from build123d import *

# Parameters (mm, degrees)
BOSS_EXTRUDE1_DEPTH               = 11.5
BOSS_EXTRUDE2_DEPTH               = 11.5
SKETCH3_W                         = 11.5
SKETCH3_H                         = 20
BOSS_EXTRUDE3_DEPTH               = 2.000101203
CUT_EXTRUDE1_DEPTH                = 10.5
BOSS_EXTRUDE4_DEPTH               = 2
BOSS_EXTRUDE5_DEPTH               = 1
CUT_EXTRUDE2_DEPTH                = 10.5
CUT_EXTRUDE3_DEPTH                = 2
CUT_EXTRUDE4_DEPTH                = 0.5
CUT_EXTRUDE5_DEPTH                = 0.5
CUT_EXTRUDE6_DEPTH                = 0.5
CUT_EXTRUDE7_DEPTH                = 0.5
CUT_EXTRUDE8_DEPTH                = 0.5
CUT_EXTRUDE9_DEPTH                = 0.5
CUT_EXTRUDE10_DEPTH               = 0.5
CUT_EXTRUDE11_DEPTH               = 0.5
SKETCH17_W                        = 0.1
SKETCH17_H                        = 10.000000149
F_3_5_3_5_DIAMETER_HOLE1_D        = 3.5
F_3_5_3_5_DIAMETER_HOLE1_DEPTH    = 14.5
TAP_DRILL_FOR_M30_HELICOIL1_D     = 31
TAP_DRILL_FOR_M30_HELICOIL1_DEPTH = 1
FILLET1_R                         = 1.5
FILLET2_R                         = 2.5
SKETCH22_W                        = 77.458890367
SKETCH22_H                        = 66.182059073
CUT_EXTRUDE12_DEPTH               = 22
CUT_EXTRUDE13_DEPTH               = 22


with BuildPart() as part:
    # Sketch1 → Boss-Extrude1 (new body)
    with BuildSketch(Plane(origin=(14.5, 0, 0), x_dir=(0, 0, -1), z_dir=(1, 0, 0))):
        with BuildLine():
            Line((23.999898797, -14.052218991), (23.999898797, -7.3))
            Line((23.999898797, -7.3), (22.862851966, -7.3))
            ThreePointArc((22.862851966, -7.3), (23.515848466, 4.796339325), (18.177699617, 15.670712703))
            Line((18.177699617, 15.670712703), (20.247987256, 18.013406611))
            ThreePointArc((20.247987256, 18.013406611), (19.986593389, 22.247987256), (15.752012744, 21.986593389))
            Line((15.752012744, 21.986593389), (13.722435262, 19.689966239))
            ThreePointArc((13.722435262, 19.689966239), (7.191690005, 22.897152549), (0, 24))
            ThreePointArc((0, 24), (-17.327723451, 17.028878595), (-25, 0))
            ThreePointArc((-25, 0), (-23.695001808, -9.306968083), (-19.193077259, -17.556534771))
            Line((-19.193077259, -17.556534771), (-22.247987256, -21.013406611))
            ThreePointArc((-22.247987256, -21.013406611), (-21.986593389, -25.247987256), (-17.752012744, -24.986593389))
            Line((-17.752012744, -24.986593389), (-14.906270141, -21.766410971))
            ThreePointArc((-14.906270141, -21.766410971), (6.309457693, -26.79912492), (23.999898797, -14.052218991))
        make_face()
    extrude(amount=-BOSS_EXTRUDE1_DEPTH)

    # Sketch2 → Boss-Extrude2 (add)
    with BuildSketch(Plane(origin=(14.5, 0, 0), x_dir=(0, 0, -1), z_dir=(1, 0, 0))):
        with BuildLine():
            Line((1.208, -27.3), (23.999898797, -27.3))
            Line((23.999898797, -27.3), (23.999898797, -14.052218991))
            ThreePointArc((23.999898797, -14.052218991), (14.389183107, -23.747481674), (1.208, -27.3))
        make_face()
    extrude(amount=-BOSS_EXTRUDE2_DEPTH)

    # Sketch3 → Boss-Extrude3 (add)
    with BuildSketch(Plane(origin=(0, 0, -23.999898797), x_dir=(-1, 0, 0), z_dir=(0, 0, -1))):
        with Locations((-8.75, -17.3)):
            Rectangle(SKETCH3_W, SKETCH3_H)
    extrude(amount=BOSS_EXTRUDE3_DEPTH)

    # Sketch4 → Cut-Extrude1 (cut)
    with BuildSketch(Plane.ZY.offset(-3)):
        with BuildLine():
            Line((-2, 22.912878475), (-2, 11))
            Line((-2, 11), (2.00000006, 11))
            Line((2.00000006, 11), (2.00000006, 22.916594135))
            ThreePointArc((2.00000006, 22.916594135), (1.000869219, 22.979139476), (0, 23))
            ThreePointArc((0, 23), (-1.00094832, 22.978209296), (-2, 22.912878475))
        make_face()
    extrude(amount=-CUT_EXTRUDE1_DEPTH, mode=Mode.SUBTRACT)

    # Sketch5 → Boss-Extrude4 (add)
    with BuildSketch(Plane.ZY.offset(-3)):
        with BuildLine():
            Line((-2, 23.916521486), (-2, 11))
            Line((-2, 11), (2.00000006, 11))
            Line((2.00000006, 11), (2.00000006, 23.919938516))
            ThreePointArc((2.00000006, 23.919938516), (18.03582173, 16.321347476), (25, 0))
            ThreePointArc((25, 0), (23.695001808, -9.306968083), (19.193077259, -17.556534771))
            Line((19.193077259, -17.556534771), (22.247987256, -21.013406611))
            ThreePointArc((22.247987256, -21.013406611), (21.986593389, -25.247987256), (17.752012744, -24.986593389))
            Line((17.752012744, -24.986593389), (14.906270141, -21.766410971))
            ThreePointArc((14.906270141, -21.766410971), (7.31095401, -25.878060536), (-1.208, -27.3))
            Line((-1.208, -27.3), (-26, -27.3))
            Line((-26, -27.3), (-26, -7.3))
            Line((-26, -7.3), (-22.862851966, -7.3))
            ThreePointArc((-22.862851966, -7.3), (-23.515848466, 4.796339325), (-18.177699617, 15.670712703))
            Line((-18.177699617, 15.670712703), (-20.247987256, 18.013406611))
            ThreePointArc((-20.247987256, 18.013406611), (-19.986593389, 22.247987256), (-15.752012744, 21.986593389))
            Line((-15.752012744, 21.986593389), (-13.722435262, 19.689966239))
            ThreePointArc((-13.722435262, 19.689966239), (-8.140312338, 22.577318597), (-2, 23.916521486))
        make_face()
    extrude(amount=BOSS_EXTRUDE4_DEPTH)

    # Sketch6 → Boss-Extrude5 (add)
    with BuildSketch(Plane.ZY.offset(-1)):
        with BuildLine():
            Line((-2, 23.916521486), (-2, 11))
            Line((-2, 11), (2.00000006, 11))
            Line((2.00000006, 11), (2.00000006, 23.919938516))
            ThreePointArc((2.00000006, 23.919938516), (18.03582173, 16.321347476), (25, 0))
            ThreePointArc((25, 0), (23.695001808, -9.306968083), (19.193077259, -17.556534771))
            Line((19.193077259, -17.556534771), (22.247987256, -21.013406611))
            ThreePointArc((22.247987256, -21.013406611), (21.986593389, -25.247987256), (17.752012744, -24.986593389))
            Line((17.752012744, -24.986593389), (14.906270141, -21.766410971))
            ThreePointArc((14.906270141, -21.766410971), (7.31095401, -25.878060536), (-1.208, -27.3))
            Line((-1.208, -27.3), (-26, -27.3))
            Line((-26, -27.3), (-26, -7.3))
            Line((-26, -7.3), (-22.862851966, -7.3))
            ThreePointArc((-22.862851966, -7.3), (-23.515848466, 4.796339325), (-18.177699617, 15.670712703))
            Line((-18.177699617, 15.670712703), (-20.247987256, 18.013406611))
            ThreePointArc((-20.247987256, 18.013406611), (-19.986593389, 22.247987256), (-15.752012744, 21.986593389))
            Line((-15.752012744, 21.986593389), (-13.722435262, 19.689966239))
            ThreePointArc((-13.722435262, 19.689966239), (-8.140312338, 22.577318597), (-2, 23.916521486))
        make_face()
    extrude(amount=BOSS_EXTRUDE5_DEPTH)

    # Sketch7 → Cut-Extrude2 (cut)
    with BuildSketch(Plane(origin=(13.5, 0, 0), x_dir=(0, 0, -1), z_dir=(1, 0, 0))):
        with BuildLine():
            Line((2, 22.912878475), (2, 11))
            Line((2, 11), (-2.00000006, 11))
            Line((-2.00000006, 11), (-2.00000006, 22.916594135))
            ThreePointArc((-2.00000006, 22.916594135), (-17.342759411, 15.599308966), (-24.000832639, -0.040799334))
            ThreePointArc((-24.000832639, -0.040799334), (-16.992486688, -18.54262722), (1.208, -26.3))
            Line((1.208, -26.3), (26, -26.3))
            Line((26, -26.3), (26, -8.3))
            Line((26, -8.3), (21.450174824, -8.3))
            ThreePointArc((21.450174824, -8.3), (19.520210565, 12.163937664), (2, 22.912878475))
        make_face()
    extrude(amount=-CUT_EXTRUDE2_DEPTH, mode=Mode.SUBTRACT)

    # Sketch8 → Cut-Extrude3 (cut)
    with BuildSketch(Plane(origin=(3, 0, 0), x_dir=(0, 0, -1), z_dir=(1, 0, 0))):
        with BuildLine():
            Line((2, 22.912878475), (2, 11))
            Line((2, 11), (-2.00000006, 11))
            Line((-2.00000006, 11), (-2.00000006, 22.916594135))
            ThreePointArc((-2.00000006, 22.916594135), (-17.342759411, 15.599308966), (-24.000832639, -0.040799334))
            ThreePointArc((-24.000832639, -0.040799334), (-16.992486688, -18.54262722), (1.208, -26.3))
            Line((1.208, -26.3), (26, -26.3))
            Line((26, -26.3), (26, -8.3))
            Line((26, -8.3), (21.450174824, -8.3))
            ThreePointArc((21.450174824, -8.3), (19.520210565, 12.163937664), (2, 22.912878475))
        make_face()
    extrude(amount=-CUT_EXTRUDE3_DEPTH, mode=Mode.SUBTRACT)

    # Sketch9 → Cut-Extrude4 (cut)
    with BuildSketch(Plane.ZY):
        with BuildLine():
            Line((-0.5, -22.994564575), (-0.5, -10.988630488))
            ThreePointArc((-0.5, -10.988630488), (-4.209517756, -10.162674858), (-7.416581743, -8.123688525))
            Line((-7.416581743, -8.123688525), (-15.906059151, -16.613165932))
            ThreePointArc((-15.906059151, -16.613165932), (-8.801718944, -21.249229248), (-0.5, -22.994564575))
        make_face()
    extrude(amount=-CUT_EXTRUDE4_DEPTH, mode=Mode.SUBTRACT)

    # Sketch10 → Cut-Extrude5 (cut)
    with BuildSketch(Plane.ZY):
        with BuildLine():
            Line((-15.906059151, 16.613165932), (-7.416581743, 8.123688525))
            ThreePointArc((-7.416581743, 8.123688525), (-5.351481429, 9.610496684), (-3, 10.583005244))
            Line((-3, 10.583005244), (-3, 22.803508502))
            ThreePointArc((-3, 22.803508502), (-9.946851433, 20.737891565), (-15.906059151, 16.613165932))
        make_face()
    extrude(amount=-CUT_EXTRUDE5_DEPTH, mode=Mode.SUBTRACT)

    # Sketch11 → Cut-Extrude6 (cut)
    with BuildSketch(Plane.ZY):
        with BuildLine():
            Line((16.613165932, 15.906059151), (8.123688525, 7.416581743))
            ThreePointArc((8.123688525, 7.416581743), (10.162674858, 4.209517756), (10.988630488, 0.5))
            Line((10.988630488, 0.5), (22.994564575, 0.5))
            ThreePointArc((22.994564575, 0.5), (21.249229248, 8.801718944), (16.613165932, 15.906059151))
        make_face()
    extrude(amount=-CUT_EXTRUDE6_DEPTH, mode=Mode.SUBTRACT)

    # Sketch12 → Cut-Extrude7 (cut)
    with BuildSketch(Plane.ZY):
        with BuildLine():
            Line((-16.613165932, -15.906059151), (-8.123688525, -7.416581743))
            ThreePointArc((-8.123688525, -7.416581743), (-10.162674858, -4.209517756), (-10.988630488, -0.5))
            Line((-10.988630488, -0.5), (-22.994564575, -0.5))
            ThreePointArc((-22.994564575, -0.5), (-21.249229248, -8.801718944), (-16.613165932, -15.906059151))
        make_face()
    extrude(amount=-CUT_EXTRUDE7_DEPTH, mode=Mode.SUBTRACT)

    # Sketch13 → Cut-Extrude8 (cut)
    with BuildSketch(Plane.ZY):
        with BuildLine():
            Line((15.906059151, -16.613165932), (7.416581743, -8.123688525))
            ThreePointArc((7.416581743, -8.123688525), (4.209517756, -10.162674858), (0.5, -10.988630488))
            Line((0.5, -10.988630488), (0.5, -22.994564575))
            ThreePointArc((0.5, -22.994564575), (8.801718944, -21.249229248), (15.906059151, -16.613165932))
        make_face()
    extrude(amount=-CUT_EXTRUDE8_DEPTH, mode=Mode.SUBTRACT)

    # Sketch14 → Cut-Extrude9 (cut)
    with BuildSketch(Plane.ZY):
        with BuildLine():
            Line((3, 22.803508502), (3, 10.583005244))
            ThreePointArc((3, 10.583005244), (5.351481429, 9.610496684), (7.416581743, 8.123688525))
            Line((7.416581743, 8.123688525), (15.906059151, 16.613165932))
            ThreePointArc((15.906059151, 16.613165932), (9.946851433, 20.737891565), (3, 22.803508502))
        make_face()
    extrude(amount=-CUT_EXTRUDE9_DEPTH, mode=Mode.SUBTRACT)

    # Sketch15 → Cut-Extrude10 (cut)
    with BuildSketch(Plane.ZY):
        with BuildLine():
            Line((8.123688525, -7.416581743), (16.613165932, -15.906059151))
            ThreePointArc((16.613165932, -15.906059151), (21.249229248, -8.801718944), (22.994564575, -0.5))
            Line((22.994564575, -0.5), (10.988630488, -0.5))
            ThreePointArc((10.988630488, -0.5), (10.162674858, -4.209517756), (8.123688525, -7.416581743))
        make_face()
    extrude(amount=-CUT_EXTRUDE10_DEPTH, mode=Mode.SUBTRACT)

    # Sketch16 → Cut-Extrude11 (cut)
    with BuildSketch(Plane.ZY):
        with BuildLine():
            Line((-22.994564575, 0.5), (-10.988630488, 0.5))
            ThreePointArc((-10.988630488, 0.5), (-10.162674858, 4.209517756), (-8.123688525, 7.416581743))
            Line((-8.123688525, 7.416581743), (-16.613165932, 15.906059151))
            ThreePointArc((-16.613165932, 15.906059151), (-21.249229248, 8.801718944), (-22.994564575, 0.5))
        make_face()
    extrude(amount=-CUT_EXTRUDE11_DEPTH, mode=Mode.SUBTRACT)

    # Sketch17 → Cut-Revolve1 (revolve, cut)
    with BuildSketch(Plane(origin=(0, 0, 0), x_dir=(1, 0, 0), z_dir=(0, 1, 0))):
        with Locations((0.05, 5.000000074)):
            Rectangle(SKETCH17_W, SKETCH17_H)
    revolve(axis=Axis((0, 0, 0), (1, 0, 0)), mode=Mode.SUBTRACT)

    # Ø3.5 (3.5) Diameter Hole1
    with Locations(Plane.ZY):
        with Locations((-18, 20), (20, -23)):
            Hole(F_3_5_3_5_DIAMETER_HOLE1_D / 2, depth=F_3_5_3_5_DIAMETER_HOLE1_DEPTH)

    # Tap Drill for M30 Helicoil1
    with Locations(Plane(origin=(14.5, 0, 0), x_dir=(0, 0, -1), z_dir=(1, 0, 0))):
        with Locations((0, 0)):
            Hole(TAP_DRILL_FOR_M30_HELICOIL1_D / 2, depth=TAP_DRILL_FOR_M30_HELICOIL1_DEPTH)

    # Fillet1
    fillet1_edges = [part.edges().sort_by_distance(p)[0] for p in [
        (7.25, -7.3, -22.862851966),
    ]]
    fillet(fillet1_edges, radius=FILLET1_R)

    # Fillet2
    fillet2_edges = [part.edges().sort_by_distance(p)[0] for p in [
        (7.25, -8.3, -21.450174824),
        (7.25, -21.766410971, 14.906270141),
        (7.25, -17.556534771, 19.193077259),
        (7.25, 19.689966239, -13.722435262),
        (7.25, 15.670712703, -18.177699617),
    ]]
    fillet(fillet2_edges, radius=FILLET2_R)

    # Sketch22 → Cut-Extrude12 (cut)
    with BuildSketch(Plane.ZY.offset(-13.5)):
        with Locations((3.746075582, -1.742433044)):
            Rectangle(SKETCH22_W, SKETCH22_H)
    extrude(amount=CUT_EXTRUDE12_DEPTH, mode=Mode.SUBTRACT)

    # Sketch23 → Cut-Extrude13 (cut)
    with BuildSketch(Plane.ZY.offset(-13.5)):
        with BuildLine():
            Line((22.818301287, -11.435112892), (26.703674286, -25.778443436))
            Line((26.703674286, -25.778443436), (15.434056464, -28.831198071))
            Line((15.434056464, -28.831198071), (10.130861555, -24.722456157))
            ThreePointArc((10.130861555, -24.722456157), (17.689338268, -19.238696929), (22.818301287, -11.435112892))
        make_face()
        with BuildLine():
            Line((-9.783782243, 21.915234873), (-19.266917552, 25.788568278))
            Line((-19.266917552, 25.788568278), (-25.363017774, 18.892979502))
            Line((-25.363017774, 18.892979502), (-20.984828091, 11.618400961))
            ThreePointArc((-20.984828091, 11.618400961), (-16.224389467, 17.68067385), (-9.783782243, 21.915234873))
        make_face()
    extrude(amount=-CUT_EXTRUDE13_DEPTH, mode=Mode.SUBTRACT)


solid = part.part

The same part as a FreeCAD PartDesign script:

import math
import FreeCAD as App
import Part
import Sketcher

V = App.Vector
Q = App.Units.Quantity


def edges_at(feature, points):
    """Names of the edges that pass closest to the given points."""
    edges = feature.Shape.Edges
    near = lambda p: min(range(len(edges)), key=lambda i: edges[i].distToShape(Part.Vertex(*p))[0])
    return sorted({f"Edge{near(p) + 1}" for p in points})

doc = App.newDocument("Part")
body = doc.addObject("PartDesign::Body", "Body")

# Sketch on YZ plane
sketch1 = body.newObject("Sketcher::SketchObject", "Sketch")
sketch1.AttachmentSupport = (doc.getObject("YZ_Plane"), [""])
sketch1.MapMode = "FlatFace"
sketch1.AttachmentOffset = App.Placement(V(0, 0, 14.5), App.Rotation())
sketch1.addGeometry([
    Part.LineSegment(V(-14.052219, -23.999899, 0), V(-7.3, -23.999899, 0)),  # 0
    Part.LineSegment(V(-7.3, -23.999899, 0), V(-7.3, -22.862852, 0)),  # 1
    Part.ArcOfCircle(Part.Circle(V(0, 0, 0), V(0, 0, 1), 24), math.radians(-107.708036), math.radians(-49.235885)),  # 2
    Part.LineSegment(V(15.670713, -18.1777, 0), V(18.013407, -20.247987, 0)),  # 3
    Part.ArcOfCircle(Part.Circle(V(20, -18, 0), V(0, 0, 1), 3), math.radians(-131.467705), math.radians(48.532295)),  # 4
    Part.LineSegment(V(21.986593, -15.752013, 0), V(19.689966, -13.722435, 0)),  # 5
    Part.ArcOfCircle(Part.Circle(V(0, 0, 0), V(0, 0, 1), 24), math.radians(-34.873615), math.radians(0)),  # 6
    Part.ArcOfCircle(Part.Circle(V(-1.020833, 0, 0), V(0, 0, 1), 25.020833), math.radians(0), math.radians(87.661721)),  # 7
    Part.ArcOfCircle(Part.Circle(V(-1.07016, -1.208, 0), V(0, 0, 1), 26.22984), math.radians(87.661721), math.radians(128.942126)),  # 8
    Part.LineSegment(V(-17.556535, 19.193077, 0), V(-21.013407, 22.247987, 0)),  # 9
    Part.ArcOfCircle(Part.Circle(V(-23, 20, 0), V(0, 0, 1), 3), math.radians(48.532295), math.radians(228.532295)),  # 10
    Part.LineSegment(V(-24.986593, 17.752013, 0), V(-21.766411, 14.90627, 0)),  # 11
    Part.ArcOfCircle(Part.Circle(V(-1.07016, -1.208, 0), V(0, 0, 1), 26.22984), math.radians(142.095383), math.radians(240.334553)),  # 12
], False)
sketch1.addConstraint([
    Sketcher.Constraint("Coincident", 0, 2, 1, 1),
    Sketcher.Constraint("Coincident", 1, 2, 2, 1),
    Sketcher.Constraint("Coincident", 2, 2, 3, 1),
    Sketcher.Constraint("Tangent", 3, 2, 4, 1),
    Sketcher.Constraint("Tangent", 4, 2, 5, 1),
    Sketcher.Constraint("Coincident", 5, 2, 6, 1),
    Sketcher.Constraint("Tangent", 6, 2, 7, 1),
    Sketcher.Constraint("Tangent", 7, 2, 8, 1),
    Sketcher.Constraint("Coincident", 8, 2, 9, 1),
    Sketcher.Constraint("Tangent", 9, 2, 10, 1),
    Sketcher.Constraint("Tangent", 10, 2, 11, 1),
    Sketcher.Constraint("Coincident", 11, 2, 12, 1),
    Sketcher.Constraint("Coincident", 12, 2, 0, 1),
    Sketcher.Constraint("Horizontal", 0),
    Sketcher.Constraint("Vertical", 1),
    Sketcher.Constraint("Coincident", 2, 3, -1, 1),
    Sketcher.Constraint("Coincident", 6, 3, -1, 1),
    Sketcher.Constraint("Coincident", 12, 3, 8, 3),
    Sketcher.Constraint("Equal", 2, 6),
    Sketcher.Constraint("Equal", 4, 10),
    Sketcher.Constraint("Equal", 8, 12),
    Sketcher.Constraint("PointOnObject", 7, 3, -1),
    Sketcher.Constraint("PointOnObject", 7, 2, -2),
    Sketcher.Constraint("Parallel", 3, 5),
    Sketcher.Constraint("Parallel", 5, 9),
    Sketcher.Constraint("Parallel", 9, 11),
    Sketcher.Constraint("Radius", 2, 24.0),
    Sketcher.Constraint("Radius", 4, 3.0),
    Sketcher.Constraint("DistanceX", -1, 1, 4, 3, 20.0),
    Sketcher.Constraint("DistanceY", 4, 3, -1, 1, 18.0),
    Sketcher.Constraint("DistanceX", 10, 3, -1, 1, 23.0),
    Sketcher.Constraint("DistanceY", -1, 1, 10, 3, 20.0),
    Sketcher.Constraint("DistanceY", -1, 1, 7, 2, 25.0),
    Sketcher.Constraint("DistanceX", 0, 2, -1, 1, 7.3),
    Sketcher.Constraint("Radius", 8, 26.22984),
    Sketcher.Constraint("DistanceX", 0, 1, 0, 2, 6.752219),
    Sketcher.Constraint("DistanceY", 2, 2, -1, 1, 18.1777),
])
pad1 = body.newObject("PartDesign::Pad", "Pad")
pad1.Profile = sketch1
pad1.Length = 11.5
pad1.Reversed = True

# Sketch on YZ plane
sketch2 = body.newObject("Sketcher::SketchObject", "Sketch001")
sketch2.AttachmentSupport = (doc.getObject("YZ_Plane"), [""])
sketch2.MapMode = "FlatFace"
sketch2.AttachmentOffset = App.Placement(V(0, 0, 14.5), App.Rotation())
sketch2.addGeometry([
    Part.LineSegment(V(-27.3, -1.208, 0), V(-27.3, -23.999899, 0)),
    Part.LineSegment(V(-27.3, -23.999899, 0), V(-14.052219, -23.999899, 0)),
    Part.ArcOfCircle(Part.Circle(V(-1.07016, -1.208, 0), V(0, 0, 1), 26.22984), math.radians(-180), math.radians(-119.665447)),
], False)
sketch2.addConstraint([
    Sketcher.Constraint("Coincident", 0, 2, 1, 1),
    Sketcher.Constraint("Coincident", 1, 2, 2, 2),
    Sketcher.Constraint("Tangent", 2, 1, 0, 1),
    Sketcher.Constraint("Vertical", 0),
    Sketcher.Constraint("Horizontal", 1),
    Sketcher.Constraint("DistanceX", 0, 2, -1, 1, 27.3),
    Sketcher.Constraint("Radius", 2, 26.22984),
    Sketcher.Constraint("DistanceY", 0, 2, 0, 1, 22.791899),
    Sketcher.Constraint("DistanceY", 2, 3, -1, 1, 1.208),
])
pad2 = body.newObject("PartDesign::Pad", "Pad001")
pad2.Profile = sketch2
pad2.Length = 11.5
pad2.Reversed = True

# Sketch on XY plane
sketch3 = body.newObject("Sketcher::SketchObject", "Sketch002")
sketch3.AttachmentSupport = (doc.getObject("XY_Plane"), [""])
sketch3.MapMode = "FlatFace"
sketch3.AttachmentOffset = App.Placement(V(0, 0, -23.999899), App.Rotation())
sketch3.addGeometry([
    Part.LineSegment(V(14.5, -7.3, 0), V(14.5, -27.3, 0)),
    Part.LineSegment(V(14.5, -27.3, 0), V(3, -27.3, 0)),
    Part.LineSegment(V(3, -27.3, 0), V(3, -7.3, 0)),
    Part.LineSegment(V(3, -7.3, 0), V(14.5, -7.3, 0)),
], False)
sketch3.addConstraint([
    Sketcher.Constraint("Coincident", 0, 2, 1, 1),
    Sketcher.Constraint("Coincident", 1, 2, 2, 1),
    Sketcher.Constraint("Coincident", 2, 2, 3, 1),
    Sketcher.Constraint("Coincident", 3, 2, 0, 1),
    Sketcher.Constraint("Vertical", 0),
    Sketcher.Constraint("Horizontal", 1),
    Sketcher.Constraint("Vertical", 2),
    Sketcher.Constraint("Horizontal", 3),
    Sketcher.Constraint("DistanceY", 0, 2, 0, 1, 20.0),
    Sketcher.Constraint("DistanceX", 1, 2, 1, 1, 11.5),
    Sketcher.Constraint("DistanceX", -1, 1, 1, 2, 3.0),
    Sketcher.Constraint("DistanceY", 0, 2, -1, 1, 27.3),
])
pad3 = body.newObject("PartDesign::Pad", "Pad002")
pad3.Profile = sketch3
pad3.Length = 2.000101
pad3.Reversed = True

# Sketch on YZ plane
sketch4 = body.newObject("Sketcher::SketchObject", "Sketch003")
sketch4.AttachmentSupport = (doc.getObject("YZ_Plane"), [""])
sketch4.MapMode = "FlatFace"
sketch4.AttachmentOffset = App.Placement(V(0, 0, 3), App.Rotation())
sketch4.addGeometry([
    Part.LineSegment(V(22.912878, -2, 0), V(11, -2, 0)),  # 0
    Part.LineSegment(V(11, -2, 0), V(11, 2, 0)),  # 1
    Part.LineSegment(V(11, 2, 0), V(22.916594, 2, 0)),  # 2
    Part.ArcOfCircle(Part.Circle(V(-1.020833, 0, 0), V(0, 0, 1), 24.020833), math.radians(0), math.radians(4.776036)),  # 3
    Part.ArcOfCircle(Part.Circle(V(0, 0, 0), V(0, 0, 1), 23), math.radians(-4.988542), math.radians(0)),  # 4
], False)
sketch4.addConstraint([
    Sketcher.Constraint("Coincident", 0, 2, 1, 1),
    Sketcher.Constraint("Coincident", 1, 2, 2, 1),
    Sketcher.Constraint("Coincident", 2, 2, 3, 2),
    Sketcher.Constraint("Tangent", 3, 1, 4, 2),
    Sketcher.Constraint("Coincident", 4, 1, 0, 1),
    Sketcher.Constraint("Horizontal", 0),
    Sketcher.Constraint("Vertical", 1),
    Sketcher.Constraint("Horizontal", 2),
    Sketcher.Constraint("Coincident", 4, 3, -1, 1),
    Sketcher.Constraint("PointOnObject", 3, 3, -1),
    Sketcher.Constraint("Radius", 4, 23.0),
    Sketcher.Constraint("DistanceY", 1, 1, 1, 2, 4.0),
    Sketcher.Constraint("DistanceX", -1, 1, 0, 2, 11.0),
    Sketcher.Constraint("DistanceY", 0, 2, -1, 1, 2.0),
    Sketcher.Constraint("Radius", 3, 24.020833),
])
pocket1 = body.newObject("PartDesign::Pocket", "Pocket")
pocket1.Profile = sketch4
pocket1.Length = 10.5
pocket1.Reversed = True

# Sketch on YZ plane
sketch5 = body.newObject("Sketcher::SketchObject", "Sketch004")
sketch5.AttachmentSupport = (doc.getObject("YZ_Plane"), [""])
sketch5.MapMode = "FlatFace"
sketch5.AttachmentOffset = App.Placement(V(0, 0, 3), App.Rotation())
sketch5.addGeometry([
    Part.LineSegment(V(11, -2, 0), V(23.916521, -2, 0)),  # 0
    Part.ArcOfCircle(Part.Circle(V(0, 0, 0), V(0, 0, 1), 24), math.radians(-34.873615), math.radians(-4.780192)),  # 1
    Part.LineSegment(V(19.689966, -13.722435, 0), V(21.986593, -15.752013, 0)),  # 2
    Part.ArcOfCircle(Part.Circle(V(20, -18, 0), V(0, 0, 1), 3), math.radians(-131.467705), math.radians(48.532295)),  # 3
    Part.LineSegment(V(18.013407, -20.247987, 0), V(15.670713, -18.1777, 0)),  # 4
    Part.ArcOfCircle(Part.Circle(V(0, 0, 0), V(0, 0, 1), 24), math.radians(-107.708036), math.radians(-49.235885)),  # 5
    Part.LineSegment(V(-7.3, -22.862852, 0), V(-7.3, -26, 0)),  # 6
    Part.LineSegment(V(-7.3, -26, 0), V(-27.3, -26, 0)),  # 7
    Part.LineSegment(V(-27.3, -26, 0), V(-27.3, -1.208, 0)),  # 8
    Part.ArcOfCircle(Part.Circle(V(-1.07016, -1.208, 0), V(0, 0, 1), 26.22984), math.radians(142.095383), math.radians(180)),  # 9
    Part.LineSegment(V(-21.766411, 14.90627, 0), V(-24.986593, 17.752013, 0)),  # 10
    Part.ArcOfCircle(Part.Circle(V(-23, 20, 0), V(0, 0, 1), 3), math.radians(48.532295), math.radians(228.532295)),  # 11
    Part.LineSegment(V(-21.013407, 22.247987, 0), V(-17.556535, 19.193077, 0)),  # 12
    Part.ArcOfCircle(Part.Circle(V(-1.07016, -1.208, 0), V(0, 0, 1), 26.22984), math.radians(87.661721), math.radians(128.942126)),  # 13
    Part.ArcOfCircle(Part.Circle(V(-1.020833, 0, 0), V(0, 0, 1), 25.020833), math.radians(4.584737), math.radians(87.661721)),  # 14
    Part.LineSegment(V(23.919939, 2, 0), V(11, 2, 0)),  # 15
    Part.LineSegment(V(11, 2, 0), V(11, -2, 0)),  # 16
], False)
sketch5.addConstraint([
    Sketcher.Constraint("Coincident", 0, 2, 1, 2),
    Sketcher.Constraint("Coincident", 1, 1, 2, 1),
    Sketcher.Constraint("Tangent", 2, 2, 3, 2),
    Sketcher.Constraint("Tangent", 3, 1, 4, 1),
    Sketcher.Constraint("Coincident", 4, 2, 5, 2),
    Sketcher.Constraint("Coincident", 5, 1, 6, 1),
    Sketcher.Constraint("Coincident", 6, 2, 7, 1),
    Sketcher.Constraint("Coincident", 7, 2, 8, 1),
    Sketcher.Constraint("Tangent", 8, 2, 9, 2),
    Sketcher.Constraint("Coincident", 9, 1, 10, 1),
    Sketcher.Constraint("Tangent", 10, 2, 11, 2),
    Sketcher.Constraint("Tangent", 11, 1, 12, 1),
    Sketcher.Constraint("Coincident", 12, 2, 13, 2),
    Sketcher.Constraint("Tangent", 13, 1, 14, 2),
    Sketcher.Constraint("Coincident", 14, 1, 15, 1),
    Sketcher.Constraint("Coincident", 15, 2, 16, 1),
    Sketcher.Constraint("Coincident", 16, 2, 0, 1),
    Sketcher.Constraint("Horizontal", 0),
    Sketcher.Constraint("Vertical", 6),
    Sketcher.Constraint("Horizontal", 7),
    Sketcher.Constraint("Vertical", 8),
    Sketcher.Constraint("Horizontal", 15),
    Sketcher.Constraint("Vertical", 16),
    Sketcher.Constraint("Coincident", 1, 3, -1, 1),
    Sketcher.Constraint("Coincident", 5, 3, -1, 1),
    Sketcher.Constraint("Coincident", 13, 3, 9, 3),
    Sketcher.Constraint("Equal", 1, 5),
    Sketcher.Constraint("Equal", 3, 11),
    Sketcher.Constraint("Equal", 9, 13),
    Sketcher.Constraint("PointOnObject", 14, 3, -1),
    Sketcher.Constraint("PointOnObject", 13, 1, -2),
    Sketcher.Constraint("Parallel", 2, 4),
    Sketcher.Constraint("Parallel", 4, 10),
    Sketcher.Constraint("Parallel", 10, 12),
    Sketcher.Constraint("Radius", 1, 24.0),
    Sketcher.Constraint("Radius", 3, 3.0),
    Sketcher.Constraint("DistanceX", 7, 2, 7, 1, 20.0),
    Sketcher.Constraint("DistanceY", 16, 2, 16, 1, 4.0),
    Sketcher.Constraint("DistanceX", -1, 1, 3, 3, 20.0),
    Sketcher.Constraint("DistanceY", 3, 3, -1, 1, 18.0),
    Sketcher.Constraint("DistanceX", 11, 3, -1, 1, 23.0),
    Sketcher.Constraint("DistanceY", -1, 1, 11, 3, 20.0),
    Sketcher.Constraint("DistanceY", 0, 2, -1, 1, 2.0),
    Sketcher.Constraint("DistanceY", 6, 2, -1, 1, 26.0),
    Sketcher.Constraint("DistanceY", -1, 1, 13, 1, 25.0),
    Sketcher.Constraint("DistanceX", -1, 1, 15, 2, 11.0),
    Sketcher.Constraint("DistanceX", 5, 1, -1, 1, 7.3),
    Sketcher.Constraint("DistanceY", 8, 1, 8, 2, 24.792),
    Sketcher.Constraint("DistanceY", 4, 2, -1, 1, 18.1777),
])
pad4 = body.newObject("PartDesign::Pad", "Pad003")
pad4.Profile = sketch5
pad4.Length = 2
pad4.Reversed = True

# Sketch on YZ plane
sketch6 = body.newObject("Sketcher::SketchObject", "Sketch005")
sketch6.AttachmentSupport = (doc.getObject("YZ_Plane"), [""])
sketch6.MapMode = "FlatFace"
sketch6.AttachmentOffset = App.Placement(V(0, 0, 1), App.Rotation())
sketch6.addGeometry([
    Part.LineSegment(V(11, -2, 0), V(23.916521, -2, 0)),  # 0
    Part.ArcOfCircle(Part.Circle(V(0, 0, 0), V(0, 0, 1), 24), math.radians(-34.873615), math.radians(-4.780192)),  # 1
    Part.LineSegment(V(19.689966, -13.722435, 0), V(21.986593, -15.752013, 0)),  # 2
    Part.ArcOfCircle(Part.Circle(V(20, -18, 0), V(0, 0, 1), 3), math.radians(-131.467705), math.radians(48.532295)),  # 3
    Part.LineSegment(V(18.013407, -20.247987, 0), V(15.670713, -18.1777, 0)),  # 4
    Part.ArcOfCircle(Part.Circle(V(0, 0, 0), V(0, 0, 1), 24), math.radians(-107.708036), math.radians(-49.235885)),  # 5
    Part.LineSegment(V(-7.3, -22.862852, 0), V(-7.3, -26, 0)),  # 6
    Part.LineSegment(V(-7.3, -26, 0), V(-27.3, -26, 0)),  # 7
    Part.LineSegment(V(-27.3, -26, 0), V(-27.3, -1.208, 0)),  # 8
    Part.ArcOfCircle(Part.Circle(V(-1.07016, -1.208, 0), V(0, 0, 1), 26.22984), math.radians(142.095383), math.radians(180)),  # 9
    Part.LineSegment(V(-21.766411, 14.90627, 0), V(-24.986593, 17.752013, 0)),  # 10
    Part.ArcOfCircle(Part.Circle(V(-23, 20, 0), V(0, 0, 1), 3), math.radians(48.532295), math.radians(228.532295)),  # 11
    Part.LineSegment(V(-21.013407, 22.247987, 0), V(-17.556535, 19.193077, 0)),  # 12
    Part.ArcOfCircle(Part.Circle(V(-1.07016, -1.208, 0), V(0, 0, 1), 26.22984), math.radians(87.661721), math.radians(128.942126)),  # 13
    Part.ArcOfCircle(Part.Circle(V(-1.020833, 0, 0), V(0, 0, 1), 25.020833), math.radians(4.584737), math.radians(87.661721)),  # 14
    Part.LineSegment(V(23.919939, 2, 0), V(11, 2, 0)),  # 15
    Part.LineSegment(V(11, 2, 0), V(11, -2, 0)),  # 16
], False)
sketch6.addConstraint([
    Sketcher.Constraint("Coincident", 0, 2, 1, 2),
    Sketcher.Constraint("Coincident", 1, 1, 2, 1),
    Sketcher.Constraint("Tangent", 2, 2, 3, 2),
    Sketcher.Constraint("Tangent", 3, 1, 4, 1),
    Sketcher.Constraint("Coincident", 4, 2, 5, 2),
    Sketcher.Constraint("Coincident", 5, 1, 6, 1),
    Sketcher.Constraint("Coincident", 6, 2, 7, 1),
    Sketcher.Constraint("Coincident", 7, 2, 8, 1),
    Sketcher.Constraint("Tangent", 8, 2, 9, 2),
    Sketcher.Constraint("Coincident", 9, 1, 10, 1),
    Sketcher.Constraint("Tangent", 10, 2, 11, 2),
    Sketcher.Constraint("Tangent", 11, 1, 12, 1),
    Sketcher.Constraint("Coincident", 12, 2, 13, 2),
    Sketcher.Constraint("Tangent", 13, 1, 14, 2),
    Sketcher.Constraint("Coincident", 14, 1, 15, 1),
    Sketcher.Constraint("Coincident", 15, 2, 16, 1),
    Sketcher.Constraint("Coincident", 16, 2, 0, 1),
    Sketcher.Constraint("Horizontal", 0),
    Sketcher.Constraint("Vertical", 6),
    Sketcher.Constraint("Horizontal", 7),
    Sketcher.Constraint("Vertical", 8),
    Sketcher.Constraint("Horizontal", 15),
    Sketcher.Constraint("Vertical", 16),
    Sketcher.Constraint("Coincident", 1, 3, -1, 1),
    Sketcher.Constraint("Coincident", 5, 3, -1, 1),
    Sketcher.Constraint("Coincident", 13, 3, 9, 3),
    Sketcher.Constraint("Equal", 1, 5),
    Sketcher.Constraint("Equal", 3, 11),
    Sketcher.Constraint("Equal", 9, 13),
    Sketcher.Constraint("PointOnObject", 14, 3, -1),
    Sketcher.Constraint("PointOnObject", 13, 1, -2),
    Sketcher.Constraint("Parallel", 2, 4),
    Sketcher.Constraint("Parallel", 4, 10),
    Sketcher.Constraint("Parallel", 10, 12),
    Sketcher.Constraint("Radius", 1, 24.0),
    Sketcher.Constraint("Radius", 3, 3.0),
    Sketcher.Constraint("DistanceX", 7, 2, 7, 1, 20.0),
    Sketcher.Constraint("DistanceY", 16, 2, 16, 1, 4.0),
    Sketcher.Constraint("DistanceX", -1, 1, 3, 3, 20.0),
    Sketcher.Constraint("DistanceY", 3, 3, -1, 1, 18.0),
    Sketcher.Constraint("DistanceX", 11, 3, -1, 1, 23.0),
    Sketcher.Constraint("DistanceY", -1, 1, 11, 3, 20.0),
    Sketcher.Constraint("DistanceY", 0, 2, -1, 1, 2.0),
    Sketcher.Constraint("DistanceY", 6, 2, -1, 1, 26.0),
    Sketcher.Constraint("DistanceY", -1, 1, 13, 1, 25.0),
    Sketcher.Constraint("DistanceX", -1, 1, 15, 2, 11.0),
    Sketcher.Constraint("DistanceX", 5, 1, -1, 1, 7.3),
    Sketcher.Constraint("DistanceY", 8, 1, 8, 2, 24.792),
    Sketcher.Constraint("DistanceY", 4, 2, -1, 1, 18.1777),
])
pad5 = body.newObject("PartDesign::Pad", "Pad004")
pad5.Profile = sketch6
pad5.Length = 1
pad5.Reversed = True

# Sketch on YZ plane
sketch7 = body.newObject("Sketcher::SketchObject", "Sketch006")
sketch7.AttachmentSupport = (doc.getObject("YZ_Plane"), [""])
sketch7.MapMode = "FlatFace"
sketch7.AttachmentOffset = App.Placement(V(0, 0, 13.5), App.Rotation())
sketch7.addGeometry([
    Part.LineSegment(V(22.912878, -2, 0), V(11, -2, 0)),  # 0
    Part.LineSegment(V(11, -2, 0), V(11, 2, 0)),  # 1
    Part.LineSegment(V(11, 2, 0), V(22.916594, 2, 0)),  # 2
    Part.ArcOfCircle(Part.Circle(V(-1.020833, 0, 0), V(0, 0, 1), 24.020833), math.radians(4.776036), math.radians(87.661721)),  # 3
    Part.ArcOfCircle(Part.Circle(V(-1.07016, -1.208, 0), V(0, 0, 1), 25.22984), math.radians(87.661721), math.radians(180)),  # 4
    Part.LineSegment(V(-26.3, -1.208, 0), V(-26.3, -26, 0)),  # 5
    Part.LineSegment(V(-26.3, -26, 0), V(-8.3, -26, 0)),  # 6
    Part.LineSegment(V(-8.3, -26, 0), V(-8.3, -21.450175, 0)),  # 7
    Part.ArcOfCircle(Part.Circle(V(0, 0, 0), V(0, 0, 1), 23), math.radians(-111.153609), math.radians(-4.988542)),  # 8
], False)
sketch7.addConstraint([
    Sketcher.Constraint("Coincident", 0, 2, 1, 1),
    Sketcher.Constraint("Coincident", 1, 2, 2, 1),
    Sketcher.Constraint("Coincident", 2, 2, 3, 1),
    Sketcher.Constraint("Coincident", 3, 2, 4, 1),
    Sketcher.Constraint("Coincident", 4, 2, 5, 1),
    Sketcher.Constraint("Coincident", 5, 2, 6, 1),
    Sketcher.Constraint("Coincident", 6, 2, 7, 1),
    Sketcher.Constraint("Coincident", 7, 2, 8, 1),
    Sketcher.Constraint("Coincident", 8, 2, 0, 1),
    Sketcher.Constraint("Horizontal", 0),
    Sketcher.Constraint("Vertical", 1),
    Sketcher.Constraint("Horizontal", 2),
    Sketcher.Constraint("Vertical", 5),
    Sketcher.Constraint("Horizontal", 6),
    Sketcher.Constraint("Vertical", 7),
    Sketcher.Constraint("Coincident", 8, 3, -1, 1),
    Sketcher.Constraint("PointOnObject", 3, 3, -1),
    Sketcher.Constraint("Radius", 8, 23.0),
    Sketcher.Constraint("DistanceX", 6, 1, 6, 2, 18.0),
    Sketcher.Constraint("DistanceY", 1, 1, 1, 2, 4.0),
    Sketcher.Constraint("DistanceX", -1, 1, 0, 2, 11.0),
    Sketcher.Constraint("DistanceY", 0, 2, -1, 1, 2.0),
    Sketcher.Constraint("DistanceY", 5, 2, -1, 1, 26.0),
    Sketcher.Constraint("DistanceX", 4, 2, -1, 1, 26.3),
    Sketcher.Constraint("DistanceY", 5, 2, 5, 1, 24.792),
    Sketcher.Constraint("Radius", 4, 25.22984),
    Sketcher.Constraint("DistanceY", 4, 3, -1, 1, 1.208),
    Sketcher.Constraint("Radius", 3, 24.020833),
    Sketcher.Constraint("DistanceX", 3, 2, -1, 1, 0.040799),
])
pocket2 = body.newObject("PartDesign::Pocket", "Pocket001")
pocket2.Profile = sketch7
pocket2.Length = 10.5

# Sketch on YZ plane
sketch8 = body.newObject("Sketcher::SketchObject", "Sketch007")
sketch8.AttachmentSupport = (doc.getObject("YZ_Plane"), [""])
sketch8.MapMode = "FlatFace"
sketch8.AttachmentOffset = App.Placement(V(0, 0, 3), App.Rotation())
sketch8.addGeometry([
    Part.LineSegment(V(22.912878, -2, 0), V(11, -2, 0)),  # 0
    Part.LineSegment(V(11, -2, 0), V(11, 2, 0)),  # 1
    Part.LineSegment(V(11, 2, 0), V(22.916594, 2, 0)),  # 2
    Part.ArcOfCircle(Part.Circle(V(-1.020833, 0, 0), V(0, 0, 1), 24.020833), math.radians(4.776036), math.radians(87.661721)),  # 3
    Part.ArcOfCircle(Part.Circle(V(-1.07016, -1.208, 0), V(0, 0, 1), 25.22984), math.radians(87.661721), math.radians(180)),  # 4
    Part.LineSegment(V(-26.3, -1.208, 0), V(-26.3, -26, 0)),  # 5
    Part.LineSegment(V(-26.3, -26, 0), V(-8.3, -26, 0)),  # 6
    Part.LineSegment(V(-8.3, -26, 0), V(-8.3, -21.450175, 0)),  # 7
    Part.ArcOfCircle(Part.Circle(V(0, 0, 0), V(0, 0, 1), 23), math.radians(-111.153609), math.radians(-4.988542)),  # 8
], False)
sketch8.addConstraint([
    Sketcher.Constraint("Coincident", 0, 2, 1, 1),
    Sketcher.Constraint("Coincident", 1, 2, 2, 1),
    Sketcher.Constraint("Coincident", 2, 2, 3, 1),
    Sketcher.Constraint("Coincident", 3, 2, 4, 1),
    Sketcher.Constraint("Coincident", 4, 2, 5, 1),
    Sketcher.Constraint("Coincident", 5, 2, 6, 1),
    Sketcher.Constraint("Coincident", 6, 2, 7, 1),
    Sketcher.Constraint("Coincident", 7, 2, 8, 1),
    Sketcher.Constraint("Coincident", 8, 2, 0, 1),
    Sketcher.Constraint("Horizontal", 0),
    Sketcher.Constraint("Vertical", 1),
    Sketcher.Constraint("Horizontal", 2),
    Sketcher.Constraint("Vertical", 5),
    Sketcher.Constraint("Horizontal", 6),
    Sketcher.Constraint("Vertical", 7),
    Sketcher.Constraint("Coincident", 8, 3, -1, 1),
    Sketcher.Constraint("PointOnObject", 3, 3, -1),
    Sketcher.Constraint("Radius", 8, 23.0),
    Sketcher.Constraint("DistanceX", 6, 1, 6, 2, 18.0),
    Sketcher.Constraint("DistanceY", 1, 1, 1, 2, 4.0),
    Sketcher.Constraint("DistanceX", -1, 1, 0, 2, 11.0),
    Sketcher.Constraint("DistanceY", 0, 2, -1, 1, 2.0),
    Sketcher.Constraint("DistanceY", 5, 2, -1, 1, 26.0),
    Sketcher.Constraint("DistanceX", 4, 2, -1, 1, 26.3),
    Sketcher.Constraint("DistanceY", 5, 2, 5, 1, 24.792),
    Sketcher.Constraint("Radius", 4, 25.22984),
    Sketcher.Constraint("DistanceY", 4, 3, -1, 1, 1.208),
    Sketcher.Constraint("Radius", 3, 24.020833),
    Sketcher.Constraint("DistanceX", 3, 2, -1, 1, 0.040799),
])
pocket3 = body.newObject("PartDesign::Pocket", "Pocket002")
pocket3.Profile = sketch8
pocket3.Length = 2

# Sketch on YZ plane
sketch9 = body.newObject("Sketcher::SketchObject", "Sketch008")
sketch9.AttachmentSupport = (doc.getObject("YZ_Plane"), [""])
sketch9.MapMode = "FlatFace"
sketch9.addGeometry([
    Part.LineSegment(V(-22.994565, -0.5, 0), V(-10.98863, -0.5, 0)),
    Part.ArcOfCircle(Part.Circle(V(0, 0, 0), V(0, 0, 1), 11), math.radians(-177.394749), math.radians(-137.605251)),
    Part.LineSegment(V(-8.123689, -7.416582, 0), V(-16.613166, -15.906059, 0)),
    Part.ArcOfCircle(Part.Circle(V(0, 0, 0), V(0, 0, 1), 23), math.radians(-178.754341), math.radians(-136.245659)),
], False)
sketch9.addConstraint([
    Sketcher.Constraint("Coincident", 0, 2, 1, 1),
    Sketcher.Constraint("Coincident", 1, 2, 2, 1),
    Sketcher.Constraint("Coincident", 2, 2, 3, 2),
    Sketcher.Constraint("Coincident", 3, 1, 0, 1),
    Sketcher.Constraint("Horizontal", 0),
    Sketcher.Constraint("Coincident", 1, 3, -1, 1),
    Sketcher.Constraint("Coincident", 3, 3, -1, 1),
    Sketcher.Constraint("Radius", 1, 11.0),
    Sketcher.Constraint("Radius", 3, 23.0),
    Sketcher.Constraint("Angle", 2, Q("-135 deg")),
    Sketcher.Constraint("DistanceY", 0, 2, -1, 1, 0.5),
    Sketcher.Constraint("DistanceX", 3, 1, 2, 2, 6.381399),
])
pocket4 = body.newObject("PartDesign::Pocket", "Pocket003")
pocket4.Profile = sketch9
pocket4.Length = 0.5
pocket4.Reversed = True

# Sketch on YZ plane
sketch10 = body.newObject("Sketcher::SketchObject", "Sketch009")
sketch10.AttachmentSupport = (doc.getObject("YZ_Plane"), [""])
sketch10.MapMode = "FlatFace"
sketch10.addGeometry([
    Part.LineSegment(V(16.613166, -15.906059, 0), V(8.123689, -7.416582, 0)),
    Part.ArcOfCircle(Part.Circle(V(0, 0, 0), V(0, 0, 1), 11), math.radians(-42.394749), math.radians(-15.82662)),
    Part.LineSegment(V(10.583005, -3, 0), V(22.803509, -3, 0)),
    Part.ArcOfCircle(Part.Circle(V(0, 0, 0), V(0, 0, 1), 23), math.radians(-43.754341), math.radians(-7.494717)),
], False)
sketch10.addConstraint([
    Sketcher.Constraint("Coincident", 0, 2, 1, 1),
    Sketcher.Constraint("Coincident", 1, 2, 2, 1),
    Sketcher.Constraint("Coincident", 2, 2, 3, 2),
    Sketcher.Constraint("Coincident", 3, 1, 0, 1),
    Sketcher.Constraint("Horizontal", 2),
    Sketcher.Constraint("Coincident", 1, 3, -1, 1),
    Sketcher.Constraint("Coincident", 3, 3, -1, 1),
    Sketcher.Constraint("Radius", 1, 11.0),
    Sketcher.Constraint("Radius", 3, 23.0),
    Sketcher.Constraint("Angle", 0, Q("135 deg")),
    Sketcher.Constraint("DistanceY", 1, 2, -1, 1, 3.0),
    Sketcher.Constraint("DistanceX", -1, 1, 0, 2, 8.123689),
])
pocket5 = body.newObject("PartDesign::Pocket", "Pocket004")
pocket5.Profile = sketch10
pocket5.Length = 0.5
pocket5.Reversed = True

# Sketch on YZ plane
sketch11 = body.newObject("Sketcher::SketchObject", "Sketch010")
sketch11.AttachmentSupport = (doc.getObject("YZ_Plane"), [""])
sketch11.MapMode = "FlatFace"
sketch11.addGeometry([
    Part.LineSegment(V(15.906059, 16.613166, 0), V(7.416582, 8.123689, 0)),
    Part.ArcOfCircle(Part.Circle(V(0, 0, 0), V(0, 0, 1), 11), math.radians(47.605251), math.radians(87.394749)),
    Part.LineSegment(V(0.5, 10.98863, 0), V(0.5, 22.994565, 0)),
    Part.ArcOfCircle(Part.Circle(V(0, 0, 0), V(0, 0, 1), 23), math.radians(46.245659), math.radians(88.754341)),
], False)
sketch11.addConstraint([
    Sketcher.Constraint("Coincident", 0, 2, 1, 1),
    Sketcher.Constraint("Coincident", 1, 2, 2, 1),
    Sketcher.Constraint("Coincident", 2, 2, 3, 2),
    Sketcher.Constraint("Coincident", 3, 1, 0, 1),
    Sketcher.Constraint("Vertical", 2),
    Sketcher.Constraint("Coincident", 1, 3, -1, 1),
    Sketcher.Constraint("Coincident", 3, 3, -1, 1),
    Sketcher.Constraint("Radius", 1, 11.0),
    Sketcher.Constraint("Radius", 3, 23.0),
    Sketcher.Constraint("Angle", 0, Q("-135 deg")),
    Sketcher.Constraint("DistanceX", -1, 1, 1, 2, 0.5),
    Sketcher.Constraint("DistanceY", 3, 1, 2, 2, 6.381399),
])
pocket6 = body.newObject("PartDesign::Pocket", "Pocket005")
pocket6.Profile = sketch11
pocket6.Length = 0.5
pocket6.Reversed = True

# Sketch on YZ plane
sketch12 = body.newObject("Sketcher::SketchObject", "Sketch011")
sketch12.AttachmentSupport = (doc.getObject("YZ_Plane"), [""])
sketch12.MapMode = "FlatFace"
sketch12.addGeometry([
    Part.LineSegment(V(-15.906059, -16.613166, 0), V(-7.416582, -8.123689, 0)),
    Part.ArcOfCircle(Part.Circle(V(0, 0, 0), V(0, 0, 1), 11), math.radians(-132.394749), math.radians(-92.605251)),
    Part.LineSegment(V(-0.5, -10.98863, 0), V(-0.5, -22.994565, 0)),
    Part.ArcOfCircle(Part.Circle(V(0, 0, 0), V(0, 0, 1), 23), math.radians(-133.754341), math.radians(-91.245659)),
], False)
sketch12.addConstraint([
    Sketcher.Constraint("Coincident", 0, 2, 1, 1),
    Sketcher.Constraint("Coincident", 1, 2, 2, 1),
    Sketcher.Constraint("Coincident", 2, 2, 3, 2),
    Sketcher.Constraint("Coincident", 3, 1, 0, 1),
    Sketcher.Constraint("Vertical", 2),
    Sketcher.Constraint("Coincident", 1, 3, -1, 1),
    Sketcher.Constraint("Coincident", 3, 3, -1, 1),
    Sketcher.Constraint("Radius", 1, 11.0),
    Sketcher.Constraint("Radius", 3, 23.0),
    Sketcher.Constraint("Angle", 0, Q("45 deg")),
    Sketcher.Constraint("DistanceX", 1, 2, -1, 1, 0.5),
    Sketcher.Constraint("DistanceY", 2, 2, 3, 1, 6.381399),
])
pocket7 = body.newObject("PartDesign::Pocket", "Pocket006")
pocket7.Profile = sketch12
pocket7.Length = 0.5
pocket7.Reversed = True

# Sketch on YZ plane
sketch13 = body.newObject("Sketcher::SketchObject", "Sketch012")
sketch13.AttachmentSupport = (doc.getObject("YZ_Plane"), [""])
sketch13.MapMode = "FlatFace"
sketch13.addGeometry([
    Part.LineSegment(V(-16.613166, 15.906059, 0), V(-8.123689, 7.416582, 0)),
    Part.ArcOfCircle(Part.Circle(V(0, 0, 0), V(0, 0, 1), 11), math.radians(137.605251), math.radians(177.394749)),
    Part.LineSegment(V(-10.98863, 0.5, 0), V(-22.994565, 0.5, 0)),
    Part.ArcOfCircle(Part.Circle(V(0, 0, 0), V(0, 0, 1), 23), math.radians(136.245659), math.radians(178.754341)),
], False)
sketch13.addConstraint([
    Sketcher.Constraint("Coincident", 0, 2, 1, 1),
    Sketcher.Constraint("Coincident", 1, 2, 2, 1),
    Sketcher.Constraint("Coincident", 2, 2, 3, 2),
    Sketcher.Constraint("Coincident", 3, 1, 0, 1),
    Sketcher.Constraint("Horizontal", 2),
    Sketcher.Constraint("Coincident", 1, 3, -1, 1),
    Sketcher.Constraint("Coincident", 3, 3, -1, 1),
    Sketcher.Constraint("Radius", 1, 11.0),
    Sketcher.Constraint("Radius", 3, 23.0),
    Sketcher.Constraint("Angle", 0, Q("-45 deg")),
    Sketcher.Constraint("DistanceY", -1, 1, 1, 2, 0.5),
    Sketcher.Constraint("DistanceX", 2, 2, 3, 1, 6.381399),
])
pocket8 = body.newObject("PartDesign::Pocket", "Pocket007")
pocket8.Profile = sketch13
pocket8.Length = 0.5
pocket8.Reversed = True

# Sketch on YZ plane
sketch14 = body.newObject("Sketcher::SketchObject", "Sketch013")
sketch14.AttachmentSupport = (doc.getObject("YZ_Plane"), [""])
sketch14.MapMode = "FlatFace"
sketch14.addGeometry([
    Part.LineSegment(V(22.803509, 3, 0), V(10.583005, 3, 0)),
    Part.ArcOfCircle(Part.Circle(V(0, 0, 0), V(0, 0, 1), 11), math.radians(15.82662), math.radians(42.394749)),
    Part.LineSegment(V(8.123689, 7.416582, 0), V(16.613166, 15.906059, 0)),
    Part.ArcOfCircle(Part.Circle(V(0, 0, 0), V(0, 0, 1), 23), math.radians(7.494717), math.radians(43.754341)),
], False)
sketch14.addConstraint([
    Sketcher.Constraint("Coincident", 0, 2, 1, 1),
    Sketcher.Constraint("Coincident", 1, 2, 2, 1),
    Sketcher.Constraint("Coincident", 2, 2, 3, 2),
    Sketcher.Constraint("Coincident", 3, 1, 0, 1),
    Sketcher.Constraint("Horizontal", 0),
    Sketcher.Constraint("Coincident", 1, 3, -1, 1),
    Sketcher.Constraint("Coincident", 3, 3, -1, 1),
    Sketcher.Constraint("Radius", 1, 11.0),
    Sketcher.Constraint("Radius", 3, 23.0),
    Sketcher.Constraint("Angle", 2, Q("45 deg")),
    Sketcher.Constraint("DistanceY", -1, 1, 0, 2, 3.0),
    Sketcher.Constraint("DistanceX", -1, 1, 1, 2, 8.123689),
])
pocket9 = body.newObject("PartDesign::Pocket", "Pocket008")
pocket9.Profile = sketch14
pocket9.Length = 0.5
pocket9.Reversed = True

# Sketch on YZ plane
sketch15 = body.newObject("Sketcher::SketchObject", "Sketch014")
sketch15.AttachmentSupport = (doc.getObject("YZ_Plane"), [""])
sketch15.MapMode = "FlatFace"
sketch15.addGeometry([
    Part.LineSegment(V(-7.416582, 8.123689, 0), V(-15.906059, 16.613166, 0)),
    Part.ArcOfCircle(Part.Circle(V(0, 0, 0), V(0, 0, 1), 23), math.radians(91.245659), math.radians(133.754341)),
    Part.LineSegment(V(-0.5, 22.994565, 0), V(-0.5, 10.98863, 0)),
    Part.ArcOfCircle(Part.Circle(V(0, 0, 0), V(0, 0, 1), 11), math.radians(92.605251), math.radians(132.394749)),
], False)
sketch15.addConstraint([
    Sketcher.Constraint("Coincident", 0, 2, 1, 2),
    Sketcher.Constraint("Coincident", 1, 1, 2, 1),
    Sketcher.Constraint("Coincident", 2, 2, 3, 1),
    Sketcher.Constraint("Coincident", 3, 2, 0, 1),
    Sketcher.Constraint("Vertical", 2),
    Sketcher.Constraint("Coincident", 1, 3, -1, 1),
    Sketcher.Constraint("Coincident", 3, 3, -1, 1),
    Sketcher.Constraint("Radius", 1, 23.0),
    Sketcher.Constraint("Radius", 3, 11.0),
    Sketcher.Constraint("Angle", 0, Q("135 deg")),
    Sketcher.Constraint("DistanceX", 1, 1, -1, 1, 0.5),
    Sketcher.Constraint("DistanceY", 0, 2, 1, 1, 6.381399),
])
pocket10 = body.newObject("PartDesign::Pocket", "Pocket009")
pocket10.Profile = sketch15
pocket10.Length = 0.5
pocket10.Reversed = True

# Sketch on YZ plane
sketch16 = body.newObject("Sketcher::SketchObject", "Sketch015")
sketch16.AttachmentSupport = (doc.getObject("YZ_Plane"), [""])
sketch16.MapMode = "FlatFace"
sketch16.addGeometry([
    Part.LineSegment(V(0.5, -22.994565, 0), V(0.5, -10.98863, 0)),
    Part.ArcOfCircle(Part.Circle(V(0, 0, 0), V(0, 0, 1), 11), math.radians(-87.394749), math.radians(-47.605251)),
    Part.LineSegment(V(7.416582, -8.123689, 0), V(15.906059, -16.613166, 0)),
    Part.ArcOfCircle(Part.Circle(V(0, 0, 0), V(0, 0, 1), 23), math.radians(-88.754341), math.radians(-46.245659)),
], False)
sketch16.addConstraint([
    Sketcher.Constraint("Coincident", 0, 2, 1, 1),
    Sketcher.Constraint("Coincident", 1, 2, 2, 1),
    Sketcher.Constraint("Coincident", 2, 2, 3, 2),
    Sketcher.Constraint("Coincident", 3, 1, 0, 1),
    Sketcher.Constraint("Vertical", 0),
    Sketcher.Constraint("Coincident", 1, 3, -1, 1),
    Sketcher.Constraint("Coincident", 3, 3, -1, 1),
    Sketcher.Constraint("Radius", 1, 11.0),
    Sketcher.Constraint("Radius", 3, 23.0),
    Sketcher.Constraint("Angle", 2, Q("-45 deg")),
    Sketcher.Constraint("DistanceX", -1, 1, 0, 2, 0.5),
    Sketcher.Constraint("DistanceY", 3, 1, 2, 2, 6.381399),
])
pocket11 = body.newObject("PartDesign::Pocket", "Pocket010")
pocket11.Profile = sketch16
pocket11.Length = 0.5
pocket11.Reversed = True

# Sketch on XZ plane
sketch17 = body.newObject("Sketcher::SketchObject", "Sketch016")
sketch17.AttachmentSupport = (doc.getObject("XZ_Plane"), [""])
sketch17.MapMode = "FlatFace"
sketch17.addGeometry([
    Part.LineSegment(V(0, -10, 0), V(0, 0, 0)),
    Part.LineSegment(V(0, 0, 0), V(0.1, 0, 0)),
    Part.LineSegment(V(0.1, 0, 0), V(0.1, -10, 0)),
    Part.LineSegment(V(0.1, -10, 0), V(0, -10, 0)),
], False)
sketch17.addConstraint([
    Sketcher.Constraint("Coincident", 0, 2, 1, 1),
    Sketcher.Constraint("Coincident", 1, 2, 2, 1),
    Sketcher.Constraint("Coincident", 2, 2, 3, 1),
    Sketcher.Constraint("Coincident", 3, 2, 0, 1),
    Sketcher.Constraint("Vertical", 0),
    Sketcher.Constraint("Horizontal", 1),
    Sketcher.Constraint("Vertical", 2),
    Sketcher.Constraint("Horizontal", 3),
    Sketcher.Constraint("Coincident", 0, 2, -1, 1),
    Sketcher.Constraint("DistanceY", 0, 1, 0, 2, 10.0),
    Sketcher.Constraint("DistanceX", 1, 1, 1, 2, 0.1),
])
groove = body.newObject("PartDesign::Groove", "Groove")
groove.Profile = sketch17
groove.ReferenceAxis = (sketch17, ["H_Axis"])
groove.Angle = 360

# Sketch on YZ plane
sketch18 = body.newObject("Sketcher::SketchObject", "Sketch017")
sketch18.AttachmentSupport = (doc.getObject("YZ_Plane"), [""])
sketch18.MapMode = "FlatFace"
sketch18.addGeometry([
    Part.Circle(V(20, -18, 0), V(0, 0, 1), 1.75),
    Part.Circle(V(-23, 20, 0), V(0, 0, 1), 1.75),
], False)
sketch18.addConstraint([
    Sketcher.Constraint("Equal", 0, 1),
    Sketcher.Constraint("Diameter", 0, 3.5),
    Sketcher.Constraint("DistanceX", -1, 1, 0, 3, 20.0),
    Sketcher.Constraint("DistanceY", 0, 3, -1, 1, 18.0),
    Sketcher.Constraint("DistanceX", 1, 3, -1, 1, 23.0),
    Sketcher.Constraint("DistanceY", -1, 1, 1, 3, 20.0),
])
doc.recompute()
hole = body.newObject("PartDesign::Hole", "Hole")
hole.Profile = sketch18
hole.ThreadType = "None"
hole.Diameter = 3.5
hole.DepthType = "Dimension"
hole.Depth = 14.5
hole.DrillPoint = "Flat"
hole.Reversed = True

# Sketch on YZ plane
sketch19 = body.newObject("Sketcher::SketchObject", "Sketch018")
sketch19.AttachmentSupport = (doc.getObject("YZ_Plane"), [""])
sketch19.MapMode = "FlatFace"
sketch19.AttachmentOffset = App.Placement(V(0, 0, 14.5), App.Rotation())
sketch19.addGeometry(Part.Circle(V(0, 0, 0), V(0, 0, 1), 15.5), False)
sketch19.addConstraint([
    Sketcher.Constraint("Coincident", 0, 3, -1, 1),
    Sketcher.Constraint("Diameter", 0, 31.0),
])
doc.recompute()
hole2 = body.newObject("PartDesign::Hole", "Hole001")
hole2.Profile = sketch19
hole2.ThreadType = "None"
hole2.Diameter = 31
hole2.DepthType = "Dimension"
hole2.Depth = 1
hole2.DrillPoint = "Flat"
doc.recompute()

fillet = body.newObject("PartDesign::Fillet", "Fillet")
fillet.Base = (hole2, edges_at(hole2, [(7.25, -7.3, -22.863)]))
fillet.Radius = 1.5
doc.recompute()

fillet2 = body.newObject("PartDesign::Fillet", "Fillet001")
fillet2.Base = (fillet, edges_at(fillet, [
    (7.25, -8.3, -21.45),
    (7.25, -21.766, 14.906),
    (7.25, -17.557, 19.193),
    (7.25, 19.69, -13.722),
    (7.25, 15.671, -18.178),
]))
fillet2.Radius = 2.5

# Sketch on YZ plane
sketch20 = body.newObject("Sketcher::SketchObject", "Sketch019")
sketch20.AttachmentSupport = (doc.getObject("YZ_Plane"), [""])
sketch20.MapMode = "FlatFace"
sketch20.AttachmentOffset = App.Placement(V(0, 0, 13.5), App.Rotation())
sketch20.addGeometry([
    Part.LineSegment(V(31.348596, -34.98337, 0), V(-34.833463, -34.98337, 0)),
    Part.LineSegment(V(-34.833463, -34.98337, 0), V(-34.833463, 42.475521, 0)),
    Part.LineSegment(V(-34.833463, 42.475521, 0), V(31.348596, 42.475521, 0)),
    Part.LineSegment(V(31.348596, 42.475521, 0), V(31.348596, -34.98337, 0)),
], False)
sketch20.addConstraint([
    Sketcher.Constraint("Coincident", 0, 2, 1, 1),
    Sketcher.Constraint("Coincident", 1, 2, 2, 1),
    Sketcher.Constraint("Coincident", 2, 2, 3, 1),
    Sketcher.Constraint("Coincident", 3, 2, 0, 1),
    Sketcher.Constraint("Horizontal", 0),
    Sketcher.Constraint("Vertical", 1),
    Sketcher.Constraint("Horizontal", 2),
    Sketcher.Constraint("Vertical", 3),
    Sketcher.Constraint("DistanceX", 0, 2, 0, 1, 66.182059),
    Sketcher.Constraint("DistanceY", 1, 1, 1, 2, 77.45889),
    Sketcher.Constraint("DistanceY", 0, 2, -1, 1, 34.98337),
    Sketcher.Constraint("DistanceX", 0, 2, -1, 1, 34.833463),
])
pocket12 = body.newObject("PartDesign::Pocket", "Pocket011")
pocket12.Profile = sketch20
pocket12.Length = 22

# Sketch on YZ plane
sketch21 = body.newObject("Sketcher::SketchObject", "Sketch020")
sketch21.AttachmentSupport = (doc.getObject("YZ_Plane"), [""])
sketch21.MapMode = "FlatFace"
sketch21.AttachmentOffset = App.Placement(V(0, 0, 13.5), App.Rotation())
sketch21.addGeometry([
    Part.LineSegment(V(-25.778443, 26.703674, 0), V(-11.435113, 22.818301, 0)),  # 0
    Part.ArcOfCircle(Part.Circle(V(-1.311404, -1.085615, 0), V(0, 0, 1), 25.959328), math.radians(112.953471), math.radians(154.400437)),  # 1
    Part.LineSegment(V(-24.722456, 10.130862, 0), V(-28.831198, 15.434056, 0)),  # 2
    Part.LineSegment(V(-28.831198, 15.434056, 0), V(-25.778443, 26.703674, 0)),  # 3
    Part.LineSegment(V(21.915235, -9.783782, 0), V(25.788568, -19.266918, 0)),  # 4
    Part.LineSegment(V(25.788568, -19.266918, 0), V(18.89298, -25.363018, 0)),  # 5
    Part.LineSegment(V(18.89298, -25.363018, 0), V(11.618401, -20.984828, 0)),  # 6
    Part.ArcOfCircle(Part.Circle(V(0.062476, -0.028432, 0), V(0, 0, 1), 23.931359), math.radians(-61.126466), math.radians(-24.056593)),  # 7
], False)
sketch21.addConstraint([
    Sketcher.Constraint("Coincident", 0, 2, 1, 1),
    Sketcher.Constraint("Coincident", 1, 2, 2, 1),
    Sketcher.Constraint("Coincident", 2, 2, 3, 1),
    Sketcher.Constraint("Coincident", 3, 2, 0, 1),
    Sketcher.Constraint("Coincident", 4, 2, 5, 1),
    Sketcher.Constraint("Coincident", 5, 2, 6, 1),
    Sketcher.Constraint("Coincident", 6, 2, 7, 1),
    Sketcher.Constraint("Coincident", 7, 2, 4, 1),
    Sketcher.Constraint("Perpendicular", 0, 3),
    Sketcher.Constraint("Radius", 7, 23.931359),
    Sketcher.Constraint("Radius", 1, 25.959328),
    Sketcher.Constraint("DistanceY", -1, 1, 0, 2, 22.818301),
    Sketcher.Constraint("DistanceX", 2, 2, -1, 1, 28.831198),
    Sketcher.Constraint("DistanceX", -1, 1, 6, 2, 11.618401),
    Sketcher.Constraint("DistanceY", 5, 2, 4, 2, 6.0961),
    Sketcher.Constraint("Distance", 3, 11.67577),
    Sketcher.Constraint("Distance", 4, 10.24366),
    Sketcher.Constraint("Distance", 5, 9.20389),
    Sketcher.Constraint("DistanceY", -1, 1, 1, 2, 10.130862),
    Sketcher.Constraint("DistanceX", -1, 1, 4, 2, 25.788568),
    Sketcher.Constraint("DistanceY", 6, 2, -1, 1, 20.984828),
    Sketcher.Constraint("DistanceX", 1, 3, 7, 3, 1.37388),
    Sketcher.Constraint("DistanceX", 0, 2, 7, 3, 11.497589),
    Sketcher.Constraint("DistanceX", 2, 2, 1, 2, 4.108742),
    Sketcher.Constraint("DistanceY", 1, 3, 2, 2, 16.519672),
    Sketcher.Constraint("DistanceY", 4, 2, 0, 2, 42.085219),
])
pocket13 = body.newObject("PartDesign::Pocket", "Pocket012")
pocket13.Profile = sketch21
pocket13.Length = 22
pocket13.Reversed = True

doc.recompute()
